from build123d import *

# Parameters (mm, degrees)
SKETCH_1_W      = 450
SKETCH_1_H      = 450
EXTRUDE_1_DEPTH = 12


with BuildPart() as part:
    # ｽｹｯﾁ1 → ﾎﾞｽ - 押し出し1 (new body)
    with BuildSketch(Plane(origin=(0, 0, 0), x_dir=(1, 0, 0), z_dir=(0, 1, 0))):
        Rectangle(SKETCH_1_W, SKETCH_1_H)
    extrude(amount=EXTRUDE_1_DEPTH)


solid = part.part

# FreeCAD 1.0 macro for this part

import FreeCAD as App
import Part
import Sketcher
from FreeCAD import Vector
Q = App.Units.Quantity

doc = App.newDocument("Part")
body = doc.addObject("PartDesign::Body", "Body")

# Sketch on XZ plane
sketch1 = body.newObject("Sketcher::SketchObject", "Sketch")
sketch1.AttachmentSupport = (doc.getObject("XZ_Plane"), [""])
sketch1.MapMode = "FlatFace"
sketch1.addGeometry(Part.LineSegment(Vector(-225, -225, 0), Vector(-225, 225, 0)), False)
sketch1.addGeometry(Part.LineSegment(Vector(-225, 225, 0), Vector(225, 225, 0)), False)
sketch1.addGeometry(Part.LineSegment(Vector(225, 225, 0), Vector(225, -225, 0)), False)
sketch1.addGeometry(Part.LineSegment(Vector(225, -225, 0), Vector(-225, -225, 0)), False)
sketch1.addConstraint(Sketcher.Constraint("Coincident", 0, 2, 1, 1))
sketch1.addConstraint(Sketcher.Constraint("Coincident", 1, 2, 2, 1))
sketch1.addConstraint(Sketcher.Constraint("Coincident", 2, 2, 3, 1))
sketch1.addConstraint(Sketcher.Constraint("Coincident", 3, 2, 0, 1))
sketch1.addConstraint(Sketcher.Constraint("Vertical", 0))
sketch1.addConstraint(Sketcher.Constraint("Horizontal", 1))
sketch1.addConstraint(Sketcher.Constraint("Vertical", 2))
sketch1.addConstraint(Sketcher.Constraint("Horizontal", 3))
sketch1.addConstraint(Sketcher.Constraint("Symmetric", 0, 2, 2, 2, -1, 1))
sketch1.addConstraint(Sketcher.Constraint("Equal", 3, 0))
sketch1.addConstraint(Sketcher.Constraint("DistanceX", 1, 1, 1, 2, Q("450 mm")))
pad1 = body.newObject("PartDesign::Pad", "Pad")
pad1.Profile = sketch1
pad1.Length = 12
pad1.Reversed = True

doc.recompute()
